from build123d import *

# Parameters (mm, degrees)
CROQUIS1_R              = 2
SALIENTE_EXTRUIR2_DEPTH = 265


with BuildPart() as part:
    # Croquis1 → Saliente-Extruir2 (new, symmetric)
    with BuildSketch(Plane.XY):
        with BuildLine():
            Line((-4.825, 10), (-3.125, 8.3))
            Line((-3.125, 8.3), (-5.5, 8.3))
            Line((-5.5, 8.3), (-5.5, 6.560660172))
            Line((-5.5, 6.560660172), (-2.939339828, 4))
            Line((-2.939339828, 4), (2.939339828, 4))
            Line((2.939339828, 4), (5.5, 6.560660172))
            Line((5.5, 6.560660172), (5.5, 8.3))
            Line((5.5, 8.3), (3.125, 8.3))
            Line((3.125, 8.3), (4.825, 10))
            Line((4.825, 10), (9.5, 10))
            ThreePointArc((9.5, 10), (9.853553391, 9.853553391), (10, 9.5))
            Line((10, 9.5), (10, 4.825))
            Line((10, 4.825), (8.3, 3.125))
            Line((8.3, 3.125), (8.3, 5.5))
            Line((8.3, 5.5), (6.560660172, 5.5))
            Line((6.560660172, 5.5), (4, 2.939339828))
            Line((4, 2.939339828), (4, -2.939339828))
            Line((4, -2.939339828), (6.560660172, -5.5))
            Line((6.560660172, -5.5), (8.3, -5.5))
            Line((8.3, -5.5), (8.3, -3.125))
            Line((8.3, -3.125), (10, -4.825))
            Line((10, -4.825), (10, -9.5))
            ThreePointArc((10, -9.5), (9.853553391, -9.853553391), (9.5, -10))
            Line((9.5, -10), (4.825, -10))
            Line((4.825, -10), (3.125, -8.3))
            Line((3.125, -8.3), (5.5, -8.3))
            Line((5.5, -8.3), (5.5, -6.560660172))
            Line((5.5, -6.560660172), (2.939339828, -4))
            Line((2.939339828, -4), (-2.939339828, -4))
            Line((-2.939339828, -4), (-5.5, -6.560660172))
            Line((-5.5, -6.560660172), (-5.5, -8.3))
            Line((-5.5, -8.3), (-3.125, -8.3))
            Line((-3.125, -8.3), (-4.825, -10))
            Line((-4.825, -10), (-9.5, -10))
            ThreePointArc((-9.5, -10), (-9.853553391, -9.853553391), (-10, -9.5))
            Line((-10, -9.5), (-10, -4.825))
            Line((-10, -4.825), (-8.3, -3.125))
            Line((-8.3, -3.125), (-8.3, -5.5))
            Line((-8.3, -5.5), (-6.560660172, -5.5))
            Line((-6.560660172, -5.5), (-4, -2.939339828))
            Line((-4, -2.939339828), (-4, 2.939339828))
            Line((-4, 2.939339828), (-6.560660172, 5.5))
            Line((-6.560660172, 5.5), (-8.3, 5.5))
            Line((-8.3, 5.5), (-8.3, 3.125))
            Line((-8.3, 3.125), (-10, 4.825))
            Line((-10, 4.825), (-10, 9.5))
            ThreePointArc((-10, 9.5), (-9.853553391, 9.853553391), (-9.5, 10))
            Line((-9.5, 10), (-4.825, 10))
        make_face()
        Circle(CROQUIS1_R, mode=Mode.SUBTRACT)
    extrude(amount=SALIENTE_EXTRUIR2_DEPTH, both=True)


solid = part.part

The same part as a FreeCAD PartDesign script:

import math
import FreeCAD as App
import Part
import Sketcher
Q = App.Units.Quantity

doc = App.newDocument("Part")
body = doc.addObject("PartDesign::Body", "Body")

sketch1 = doc.addObject("Sketcher::SketchObject", "Sketch")
body.addObject(sketch1)
sketch1.AttachmentSupport = (doc.XY_Plane, [""])
sketch1.MapMode = "FlatFace"
sketch1.addGeometry(Part.LineSegment(App.Vector(-3.125, 8.3, 0), App.Vector(-4.825, 10, 0)), False)
sketch1.addGeometry(Part.LineSegment(App.Vector(-4.825, 10, 0), App.Vector(-9.5, 10, 0)), False)
sketch1.addGeometry(Part.ArcOfCircle(Part.Circle(App.Vector(-9.5, 9.5, 0), App.Vector(0, 0, 1), 0.5), math.radians(90), math.radians(180)), False)
sketch1.addGeometry(Part.LineSegment(App.Vector(-10, 9.5, 0), App.Vector(-10, 4.825, 0)), False)
sketch1.addGeometry(Part.LineSegment(App.Vector(-10, 4.825, 0), App.Vector(-8.3, 3.125, 0)), False)
sketch1.addGeometry(Part.LineSegment(App.Vector(-8.3, 3.125, 0), App.Vector(-8.3, 5.5, 0)), False)
sketch1.addGeometry(Part.LineSegment(App.Vector(-8.3, 5.5, 0), App.Vector(-6.56066, 5.5, 0)), False)
sketch1.addGeometry(Part.LineSegment(App.Vector(-6.56066, 5.5, 0), App.Vector(-4, 2.93934, 0)), False)
sketch1.addGeometry(Part.LineSegment(App.Vector(-4, 2.93934, 0), App.Vector(-4, -2.93934, 0)), False)
sketch1.addGeometry(Part.LineSegment(App.Vector(-4, -2.93934, 0), App.Vector(-6.56066, -5.5, 0)), False)
sketch1.addGeometry(Part.LineSegment(App.Vector(-6.56066, -5.5, 0), App.Vector(-8.3, -5.5, 0)), False)
sketch1.addGeometry(Part.LineSegment(App.Vector(-8.3, -5.5, 0), App.Vector(-8.3, -3.125, 0)), False)
sketch1.addGeometry(Part.LineSegment(App.Vector(-8.3, -3.125, 0), App.Vector(-10, -4.825, 0)), False)
sketch1.addGeometry(Part.LineSegment(App.Vector(-10, -4.825, 0), App.Vector(-10, -9.5, 0)), False)
sketch1.addGeometry(Part.ArcOfCircle(Part.Circle(App.Vector(-9.5, -9.5, 0), App.Vector(0, 0, 1), 0.5), math.radians(180), math.radians(270)), False)
sketch1.addGeometry(Part.LineSegment(App.Vector(-9.5, -10, 0), App.Vector(-4.825, -10, 0)), False)
sketch1.addGeometry(Part.LineSegment(App.Vector(-4.825, -10, 0), App.Vector(-3.125, -8.3, 0)), False)
sketch1.addGeometry(Part.LineSegment(App.Vector(-3.125, -8.3, 0), App.Vector(-5.5, -8.3, 0)), False)
sketch1.addGeometry(Part.LineSegment(App.Vector(-5.5, -8.3, 0), App.Vector(-5.5, -6.56066, 0)), False)
sketch1.addGeometry(Part.LineSegment(App.Vector(-5.5, -6.56066, 0), App.Vector(-2.93934, -4, 0)), False)
sketch1.addGeometry(Part.LineSegment(App.Vector(-2.93934, -4, 0), App.Vector(2.93934, -4, 0)), False)
sketch1.addGeometry(Part.LineSegment(App.Vector(2.93934, -4, 0), App.Vector(5.5, -6.56066, 0)), False)
sketch1.addGeometry(Part.LineSegment(App.Vector(5.5, -6.56066, 0), App.Vector(5.5, -8.3, 0)), False)
sketch1.addGeometry(Part.LineSegment(App.Vector(5.5, -8.3, 0), App.Vector(3.125, -8.3, 0)), False)
sketch1.addGeometry(Part.LineSegment(App.Vector(3.125, -8.3, 0), App.Vector(4.825, -10, 0)), False)
sketch1.addGeometry(Part.LineSegment(App.Vector(4.825, -10, 0), App.Vector(9.5, -10, 0)), False)
sketch1.addGeometry(Part.ArcOfCircle(Part.Circle(App.Vector(9.5, -9.5, 0), App.Vector(0, 0, 1), 0.5), math.radians(-90), math.radians(0)), False)
sketch1.addGeometry(Part.LineSegment(App.Vector(10, -9.5, 0), App.Vector(10, -4.825, 0)), False)
sketch1.addGeometry(Part.LineSegment(App.Vector(10, -4.825, 0), App.Vector(8.3, -3.125, 0)), False)
sketch1.addGeometry(Part.LineSegment(App.Vector(8.3, -3.125, 0), App.Vector(8.3, -5.5, 0)), False)
sketch1.addGeometry(Part.LineSegment(App.Vector(8.3, -5.5, 0), App.Vector(6.56066, -5.5, 0)), False)
sketch1.addGeometry(Part.LineSegment(App.Vector(6.56066, -5.5, 0), App.Vector(4, -2.93934, 0)), False)
sketch1.addGeometry(Part.LineSegment(App.Vector(4, -2.93934, 0), App.Vector(4, 2.93934, 0)), False)
sketch1.addGeometry(Part.LineSegment(App.Vector(4, 2.93934, 0), App.Vector(6.56066, 5.5, 0)), False)
sketch1.addGeometry(Part.LineSegment(App.Vector(6.56066, 5.5, 0), App.Vector(8.3, 5.5, 0)), False)
sketch1.addGeometry(Part.LineSegment(App.Vector(8.3, 5.5, 0), App.Vector(8.3, 3.125, 0)), False)
sketch1.addGeometry(Part.LineSegment(App.Vector(8.3, 3.125, 0), App.Vector(10, 4.825, 0)), False)
sketch1.addGeometry(Part.LineSegment(App.Vector(10, 4.825, 0), App.Vector(10, 9.5, 0)), False)
sketch1.addGeometry(Part.ArcOfCircle(Part.Circle(App.Vector(9.5, 9.5, 0), App.Vector(0, 0, 1), 0.5), math.radians(0), math.radians(90)), False)
sketch1.addGeometry(Part.LineSegment(App.Vector(9.5, 10, 0), App.Vector(4.825, 10, 0)), False)
sketch1.addGeometry(Part.LineSegment(App.Vector(4.825, 10, 0), App.Vector(3.125, 8.3, 0)), False)
sketch1.addGeometry(Part.LineSegment(App.Vector(3.125, 8.3, 0), App.Vector(5.5, 8.3, 0)), False)
sketch1.addGeometry(Part.LineSegment(App.Vector(5.5, 8.3, 0), App.Vector(5.5, 6.56066, 0)), False)
sketch1.addGeometry(Part.LineSegment(App.Vector(5.5, 6.56066, 0), App.Vector(2.93934, 4, 0)), False)
sketch1.addGeometry(Part.LineSegment(App.Vector(2.93934, 4, 0), App.Vector(-2.93934, 4, 0)), False)
sketch1.addGeometry(Part.LineSegment(App.Vector(-2.93934, 4, 0), App.Vector(-5.5, 6.56066, 0)), False)
sketch1.addGeometry(Part.LineSegment(App.Vector(-5.5, 6.56066, 0), App.Vector(-5.5, 8.3, 0)), False)
sketch1.addGeometry(Part.LineSegment(App.Vector(-5.5, 8.3, 0), App.Vector(-3.125, 8.3, 0)), False)
sketch1.addGeometry(Part.Circle(App.Vector(0, 0, 0), App.Vector(0, 0, 1), 2), False)
sketch1.addConstraint(Sketcher.Constraint("Coincident", 0, 2, 1, 1))
sketch1.addConstraint(Sketcher.Constraint("Tangent", 1, 2, 2, 1))
sketch1.addConstraint(Sketcher.Constraint("Tangent", 2, 2, 3, 1))
sketch1.addConstraint(Sketcher.Constraint("Coincident", 3, 2, 4, 1))
sketch1.addConstraint(Sketcher.Constraint("Coincident", 4, 2, 5, 1))
sketch1.addConstraint(Sketcher.Constraint("Coincident", 5, 2, 6, 1))
sketch1.addConstraint(Sketcher.Constraint("Coincident", 6, 2, 7, 1))
sketch1.addConstraint(Sketcher.Constraint("Coincident", 7, 2, 8, 1))
sketch1.addConstraint(Sketcher.Constraint("Coincident", 8, 2, 9, 1))
sketch1.addConstraint(Sketcher.Constraint("Coincident", 9, 2, 10, 1))
sketch1.addConstraint(Sketcher.Constraint("Coincident", 10, 2, 11, 1))
sketch1.addConstraint(Sketcher.Constraint("Coincident", 11, 2, 12, 1))
sketch1.addConstraint(Sketcher.Constraint("Coincident", 12, 2, 13, 1))
sketch1.addConstraint(Sketcher.Constraint("Tangent", 13, 2, 14, 1))
sketch1.addConstraint(Sketcher.Constraint("Tangent", 14, 2, 15, 1))
sketch1.addConstraint(Sketcher.Constraint("Coincident", 15, 2, 16, 1))
sketch1.addConstraint(Sketcher.Constraint("Coincident", 16, 2, 17, 1))
sketch1.addConstraint(Sketcher.Constraint("Coincident", 17, 2, 18, 1))
sketch1.addConstraint(Sketcher.Constraint("Coincident", 18, 2, 19, 1))
sketch1.addConstraint(Sketcher.Constraint("Coincident", 19, 2, 20, 1))
sketch1.addConstraint(Sketcher.Constraint("Coincident", 20, 2, 21, 1))
sketch1.addConstraint(Sketcher.Constraint("Coincident", 21, 2, 22, 1))
sketch1.addConstraint(Sketcher.Constraint("Coincident", 22, 2, 23, 1))
sketch1.addConstraint(Sketcher.Constraint("Coincident", 23, 2, 24, 1))
sketch1.addConstraint(Sketcher.Constraint("Coincident", 24, 2, 25, 1))
sketch1.addConstraint(Sketcher.Constraint("Tangent", 25, 2, 26, 1))
sketch1.addConstraint(Sketcher.Constraint("Tangent", 26, 2, 27, 1))
sketch1.addConstraint(Sketcher.Constraint("Coincident", 27, 2, 28, 1))
sketch1.addConstraint(Sketcher.Constraint("Coincident", 28, 2, 29, 1))
sketch1.addConstraint(Sketcher.Constraint("Coincident", 29, 2, 30, 1))
sketch1.addConstraint(Sketcher.Constraint("Coincident", 30, 2, 31, 1))
sketch1.addConstraint(Sketcher.Constraint("Coincident", 31, 2, 32, 1))
sketch1.addConstraint(Sketcher.Constraint("Coincident", 32, 2, 33, 1))
sketch1.addConstraint(Sketcher.Constraint("Coincident", 33, 2, 34, 1))
sketch1.addConstraint(Sketcher.Constraint("Coincident", 34, 2, 35, 1))
sketch1.addConstraint(Sketcher.Constraint("Coincident", 35, 2, 36, 1))
sketch1.addConstraint(Sketcher.Constraint("Coincident", 36, 2, 37, 1))
sketch1.addConstraint(Sketcher.Constraint("Tangent", 37, 2, 38, 1))
sketch1.addConstraint(Sketcher.Constraint("Tangent", 38, 2, 39, 1))
sketch1.addConstraint(Sketcher.Constraint("Coincident", 39, 2, 40, 1))
sketch1.addConstraint(Sketcher.Constraint("Coincident", 40, 2, 41, 1))
sketch1.addConstraint(Sketcher.Constraint("Coincident", 41, 2, 42, 1))
sketch1.addConstraint(Sketcher.Constraint("Coincident", 42, 2, 43, 1))
sketch1.addConstraint(Sketcher.Constraint("Coincident", 43, 2, 44, 1))
sketch1.addConstraint(Sketcher.Constraint("Coincident", 44, 2, 45, 1))
sketch1.addConstraint(Sketcher.Constraint("Coincident", 45, 2, 46, 1))
sketch1.addConstraint(Sketcher.Constraint("Coincident", 46, 2, 47, 1))
sketch1.addConstraint(Sketcher.Constraint("Coincident", 47, 2, 0, 1))
sketch1.addConstraint(Sketcher.Constraint("Horizontal", 1))
sketch1.addConstraint(Sketcher.Constraint("Vertical", 3))
sketch1.addConstraint(Sketcher.Constraint("Vertical", 5))
sketch1.addConstraint(Sketcher.Constraint("Horizontal", 6))
sketch1.addConstraint(Sketcher.Constraint("Vertical", 8))
sketch1.addConstraint(Sketcher.Constraint("Horizontal", 10))
sketch1.addConstraint(Sketcher.Constraint("Vertical", 11))
sketch1.addConstraint(Sketcher.Constraint("Vertical", 13))
sketch1.addConstraint(Sketcher.Constraint("Horizontal", 15))
sketch1.addConstraint(Sketcher.Constraint("Horizontal", 17))
sketch1.addConstraint(Sketcher.Constraint("Vertical", 18))
sketch1.addConstraint(Sketcher.Constraint("Horizontal", 20))
sketch1.addConstraint(Sketcher.Constraint("Vertical", 22))
sketch1.addConstraint(Sketcher.Constraint("Horizontal", 23))
sketch1.addConstraint(Sketcher.Constraint("Horizontal", 25))
sketch1.addConstraint(Sketcher.Constraint("Vertical", 27))
sketch1.addConstraint(Sketcher.Constraint("Vertical", 29))
sketch1.addConstraint(Sketcher.Constraint("Horizontal", 30))
sketch1.addConstraint(Sketcher.Constraint("Vertical", 32))
sketch1.addConstraint(Sketcher.Constraint("Horizontal", 34))
sketch1.addConstraint(Sketcher.Constraint("Vertical", 35))
sketch1.addConstraint(Sketcher.Constraint("Vertical", 37))
sketch1.addConstraint(Sketcher.Constraint("Horizontal", 39))
sketch1.addConstraint(Sketcher.Constraint("Horizontal", 41))
sketch1.addConstraint(Sketcher.Constraint("Vertical", 42))
sketch1.addConstraint(Sketcher.Constraint("Horizontal", 44))
sketch1.addConstraint(Sketcher.Constraint("Vertical", 46))
sketch1.addConstraint(Sketcher.Constraint("Horizontal", 47))
sketch1.addConstraint(Sketcher.Constraint("Coincident", 48, 3, -1, 1))
sketch1.addConstraint(Sketcher.Constraint("Equal", 2, 14))
sketch1.addConstraint(Sketcher.Constraint("Equal", 14, 26))
sketch1.addConstraint(Sketcher.Constraint("Equal", 26, 38))
sketch1.addConstraint(Sketcher.Constraint("Symmetric", 2, 3, 26, 3, -1, 1))
sketch1.addConstraint(Sketcher.Constraint("Symmetric", 14, 3, 38, 3, -1, 1))
sketch1.addConstraint(Sketcher.Constraint("Symmetric", 4, 2, 28, 2, -1, 1))
sketch1.addConstraint(Sketcher.Constraint("Symmetric", 6, 2, 30, 2, -1, 1))
sketch1.addConstraint(Sketcher.Constraint("Symmetric", 7, 2, 31, 2, -1, 1))
sketch1.addConstraint(Sketcher.Constraint("Symmetric", 9, 2, 33, 2, -1, 1))
sketch1.addConstraint(Sketcher.Constraint("Symmetric", 11, 2, 35, 2, -1, 1))
sketch1.addConstraint(Sketcher.Constraint("Symmetric", 16, 2, 40, 2, -1, 1))
sketch1.addConstraint(Sketcher.Constraint("Symmetric", 18, 2, 42, 2, -1, 1))
sketch1.addConstraint(Sketcher.Constraint("Symmetric", 19, 2, 43, 2, -1, 1))
sketch1.addConstraint(Sketcher.Constraint("Symmetric", 21, 2, 45, 2, -1, 1))
sketch1.addConstraint(Sketcher.Constraint("Symmetric", 23, 2, 47, 2, -1, 1))
sketch1.addConstraint(Sketcher.Constraint("Symmetric", 14, 3, 26, 3, -2))
sketch1.addConstraint(Sketcher.Constraint("Symmetric", 18, 2, 21, 2, -2))
sketch1.addConstraint(Sketcher.Constraint("Symmetric", 16, 2, 23, 2, -2))
sketch1.addConstraint(Sketcher.Constraint("Symmetric", 11, 2, 28, 2, -2))
sketch1.addConstraint(Sketcher.Constraint("Symmetric", 9, 2, 30, 2, -2))
sketch1.addConstraint(Sketcher.Constraint("Parallel", 0, 4))
sketch1.addConstraint(Sketcher.Constraint("Parallel", 4, 7))
sketch1.addConstraint(Sketcher.Constraint("Perpendicular", 7, 9))
sketch1.addConstraint(Sketcher.Constraint("Parallel", 9, 12))
sketch1.addConstraint(Sketcher.Constraint("Parallel", 12, 16))
sketch1.addConstraint(Sketcher.Constraint("Parallel", 16, 19))
sketch1.addConstraint(Sketcher.Constraint("Perpendicular", 19, 21))
sketch1.addConstraint(Sketcher.Constraint("Parallel", 21, 24))
sketch1.addConstraint(Sketcher.Constraint("Parallel", 24, 28))
sketch1.addConstraint(Sketcher.Constraint("Perpendicular", 31, 33))
sketch1.addConstraint(Sketcher.Constraint("Parallel", 33, 36))
sketch1.addConstraint(Sketcher.Constraint("Parallel", 36, 40))
sketch1.addConstraint(Sketcher.Constraint("Perpendicular", 43, 45))
sketch1.addConstraint(Sketcher.Constraint("Horizontal", 12, 2, 27, 2))
sketch1.addConstraint(Sketcher.Constraint("Equal", 39, 3))
sketch1.addConstraint(Sketcher.Constraint("Equal", 47, 5))
sketch1.addConstraint(Sketcher.Constraint("Equal", 44, 8))
sketch1.addConstraint(Sketcher.Constraint("Equal", 34, 18))
sketch1.addConstraint(Sketcher.Constraint("Equal", 0, 4))
sketch1.addConstraint(Sketcher.Constraint("Equal", 9, 19))
sketch1.addConstraint(Sketcher.Constraint("Diameter", 48, Q("4 mm")))
sketch1.addConstraint(Sketcher.Constraint("Radius", 2, Q("0.5 mm")))
sketch1.addConstraint(Sketcher.Constraint("DistanceY", -1, 1, 0, 2, Q("10 mm")))
sketch1.addConstraint(Sketcher.Constraint("DistanceX", 7, 2, -1, 1, Q("4 mm")))
sketch1.addConstraint(Sketcher.Constraint("DistanceY", 5, 2, 2, 3, Q("4 mm")))
sketch1.addConstraint(Sketcher.Constraint("DistanceX", 4, 2, -1, 1, Q("8.3 mm")))
sketch1.addConstraint(Sketcher.Constraint("DistanceX", 1, 2, 1, 1, Q("4.675 mm")))
sketch1.addConstraint(Sketcher.Constraint("DistanceX", 6, 1, 6, 2, Q("1.73934 mm")))
pad1 = doc.addObject("PartDesign::Pad", "Pad")
body.addObject(pad1)
pad1.Profile = sketch1
pad1.Length = 530
pad1.Midplane = True

doc.recompute()
